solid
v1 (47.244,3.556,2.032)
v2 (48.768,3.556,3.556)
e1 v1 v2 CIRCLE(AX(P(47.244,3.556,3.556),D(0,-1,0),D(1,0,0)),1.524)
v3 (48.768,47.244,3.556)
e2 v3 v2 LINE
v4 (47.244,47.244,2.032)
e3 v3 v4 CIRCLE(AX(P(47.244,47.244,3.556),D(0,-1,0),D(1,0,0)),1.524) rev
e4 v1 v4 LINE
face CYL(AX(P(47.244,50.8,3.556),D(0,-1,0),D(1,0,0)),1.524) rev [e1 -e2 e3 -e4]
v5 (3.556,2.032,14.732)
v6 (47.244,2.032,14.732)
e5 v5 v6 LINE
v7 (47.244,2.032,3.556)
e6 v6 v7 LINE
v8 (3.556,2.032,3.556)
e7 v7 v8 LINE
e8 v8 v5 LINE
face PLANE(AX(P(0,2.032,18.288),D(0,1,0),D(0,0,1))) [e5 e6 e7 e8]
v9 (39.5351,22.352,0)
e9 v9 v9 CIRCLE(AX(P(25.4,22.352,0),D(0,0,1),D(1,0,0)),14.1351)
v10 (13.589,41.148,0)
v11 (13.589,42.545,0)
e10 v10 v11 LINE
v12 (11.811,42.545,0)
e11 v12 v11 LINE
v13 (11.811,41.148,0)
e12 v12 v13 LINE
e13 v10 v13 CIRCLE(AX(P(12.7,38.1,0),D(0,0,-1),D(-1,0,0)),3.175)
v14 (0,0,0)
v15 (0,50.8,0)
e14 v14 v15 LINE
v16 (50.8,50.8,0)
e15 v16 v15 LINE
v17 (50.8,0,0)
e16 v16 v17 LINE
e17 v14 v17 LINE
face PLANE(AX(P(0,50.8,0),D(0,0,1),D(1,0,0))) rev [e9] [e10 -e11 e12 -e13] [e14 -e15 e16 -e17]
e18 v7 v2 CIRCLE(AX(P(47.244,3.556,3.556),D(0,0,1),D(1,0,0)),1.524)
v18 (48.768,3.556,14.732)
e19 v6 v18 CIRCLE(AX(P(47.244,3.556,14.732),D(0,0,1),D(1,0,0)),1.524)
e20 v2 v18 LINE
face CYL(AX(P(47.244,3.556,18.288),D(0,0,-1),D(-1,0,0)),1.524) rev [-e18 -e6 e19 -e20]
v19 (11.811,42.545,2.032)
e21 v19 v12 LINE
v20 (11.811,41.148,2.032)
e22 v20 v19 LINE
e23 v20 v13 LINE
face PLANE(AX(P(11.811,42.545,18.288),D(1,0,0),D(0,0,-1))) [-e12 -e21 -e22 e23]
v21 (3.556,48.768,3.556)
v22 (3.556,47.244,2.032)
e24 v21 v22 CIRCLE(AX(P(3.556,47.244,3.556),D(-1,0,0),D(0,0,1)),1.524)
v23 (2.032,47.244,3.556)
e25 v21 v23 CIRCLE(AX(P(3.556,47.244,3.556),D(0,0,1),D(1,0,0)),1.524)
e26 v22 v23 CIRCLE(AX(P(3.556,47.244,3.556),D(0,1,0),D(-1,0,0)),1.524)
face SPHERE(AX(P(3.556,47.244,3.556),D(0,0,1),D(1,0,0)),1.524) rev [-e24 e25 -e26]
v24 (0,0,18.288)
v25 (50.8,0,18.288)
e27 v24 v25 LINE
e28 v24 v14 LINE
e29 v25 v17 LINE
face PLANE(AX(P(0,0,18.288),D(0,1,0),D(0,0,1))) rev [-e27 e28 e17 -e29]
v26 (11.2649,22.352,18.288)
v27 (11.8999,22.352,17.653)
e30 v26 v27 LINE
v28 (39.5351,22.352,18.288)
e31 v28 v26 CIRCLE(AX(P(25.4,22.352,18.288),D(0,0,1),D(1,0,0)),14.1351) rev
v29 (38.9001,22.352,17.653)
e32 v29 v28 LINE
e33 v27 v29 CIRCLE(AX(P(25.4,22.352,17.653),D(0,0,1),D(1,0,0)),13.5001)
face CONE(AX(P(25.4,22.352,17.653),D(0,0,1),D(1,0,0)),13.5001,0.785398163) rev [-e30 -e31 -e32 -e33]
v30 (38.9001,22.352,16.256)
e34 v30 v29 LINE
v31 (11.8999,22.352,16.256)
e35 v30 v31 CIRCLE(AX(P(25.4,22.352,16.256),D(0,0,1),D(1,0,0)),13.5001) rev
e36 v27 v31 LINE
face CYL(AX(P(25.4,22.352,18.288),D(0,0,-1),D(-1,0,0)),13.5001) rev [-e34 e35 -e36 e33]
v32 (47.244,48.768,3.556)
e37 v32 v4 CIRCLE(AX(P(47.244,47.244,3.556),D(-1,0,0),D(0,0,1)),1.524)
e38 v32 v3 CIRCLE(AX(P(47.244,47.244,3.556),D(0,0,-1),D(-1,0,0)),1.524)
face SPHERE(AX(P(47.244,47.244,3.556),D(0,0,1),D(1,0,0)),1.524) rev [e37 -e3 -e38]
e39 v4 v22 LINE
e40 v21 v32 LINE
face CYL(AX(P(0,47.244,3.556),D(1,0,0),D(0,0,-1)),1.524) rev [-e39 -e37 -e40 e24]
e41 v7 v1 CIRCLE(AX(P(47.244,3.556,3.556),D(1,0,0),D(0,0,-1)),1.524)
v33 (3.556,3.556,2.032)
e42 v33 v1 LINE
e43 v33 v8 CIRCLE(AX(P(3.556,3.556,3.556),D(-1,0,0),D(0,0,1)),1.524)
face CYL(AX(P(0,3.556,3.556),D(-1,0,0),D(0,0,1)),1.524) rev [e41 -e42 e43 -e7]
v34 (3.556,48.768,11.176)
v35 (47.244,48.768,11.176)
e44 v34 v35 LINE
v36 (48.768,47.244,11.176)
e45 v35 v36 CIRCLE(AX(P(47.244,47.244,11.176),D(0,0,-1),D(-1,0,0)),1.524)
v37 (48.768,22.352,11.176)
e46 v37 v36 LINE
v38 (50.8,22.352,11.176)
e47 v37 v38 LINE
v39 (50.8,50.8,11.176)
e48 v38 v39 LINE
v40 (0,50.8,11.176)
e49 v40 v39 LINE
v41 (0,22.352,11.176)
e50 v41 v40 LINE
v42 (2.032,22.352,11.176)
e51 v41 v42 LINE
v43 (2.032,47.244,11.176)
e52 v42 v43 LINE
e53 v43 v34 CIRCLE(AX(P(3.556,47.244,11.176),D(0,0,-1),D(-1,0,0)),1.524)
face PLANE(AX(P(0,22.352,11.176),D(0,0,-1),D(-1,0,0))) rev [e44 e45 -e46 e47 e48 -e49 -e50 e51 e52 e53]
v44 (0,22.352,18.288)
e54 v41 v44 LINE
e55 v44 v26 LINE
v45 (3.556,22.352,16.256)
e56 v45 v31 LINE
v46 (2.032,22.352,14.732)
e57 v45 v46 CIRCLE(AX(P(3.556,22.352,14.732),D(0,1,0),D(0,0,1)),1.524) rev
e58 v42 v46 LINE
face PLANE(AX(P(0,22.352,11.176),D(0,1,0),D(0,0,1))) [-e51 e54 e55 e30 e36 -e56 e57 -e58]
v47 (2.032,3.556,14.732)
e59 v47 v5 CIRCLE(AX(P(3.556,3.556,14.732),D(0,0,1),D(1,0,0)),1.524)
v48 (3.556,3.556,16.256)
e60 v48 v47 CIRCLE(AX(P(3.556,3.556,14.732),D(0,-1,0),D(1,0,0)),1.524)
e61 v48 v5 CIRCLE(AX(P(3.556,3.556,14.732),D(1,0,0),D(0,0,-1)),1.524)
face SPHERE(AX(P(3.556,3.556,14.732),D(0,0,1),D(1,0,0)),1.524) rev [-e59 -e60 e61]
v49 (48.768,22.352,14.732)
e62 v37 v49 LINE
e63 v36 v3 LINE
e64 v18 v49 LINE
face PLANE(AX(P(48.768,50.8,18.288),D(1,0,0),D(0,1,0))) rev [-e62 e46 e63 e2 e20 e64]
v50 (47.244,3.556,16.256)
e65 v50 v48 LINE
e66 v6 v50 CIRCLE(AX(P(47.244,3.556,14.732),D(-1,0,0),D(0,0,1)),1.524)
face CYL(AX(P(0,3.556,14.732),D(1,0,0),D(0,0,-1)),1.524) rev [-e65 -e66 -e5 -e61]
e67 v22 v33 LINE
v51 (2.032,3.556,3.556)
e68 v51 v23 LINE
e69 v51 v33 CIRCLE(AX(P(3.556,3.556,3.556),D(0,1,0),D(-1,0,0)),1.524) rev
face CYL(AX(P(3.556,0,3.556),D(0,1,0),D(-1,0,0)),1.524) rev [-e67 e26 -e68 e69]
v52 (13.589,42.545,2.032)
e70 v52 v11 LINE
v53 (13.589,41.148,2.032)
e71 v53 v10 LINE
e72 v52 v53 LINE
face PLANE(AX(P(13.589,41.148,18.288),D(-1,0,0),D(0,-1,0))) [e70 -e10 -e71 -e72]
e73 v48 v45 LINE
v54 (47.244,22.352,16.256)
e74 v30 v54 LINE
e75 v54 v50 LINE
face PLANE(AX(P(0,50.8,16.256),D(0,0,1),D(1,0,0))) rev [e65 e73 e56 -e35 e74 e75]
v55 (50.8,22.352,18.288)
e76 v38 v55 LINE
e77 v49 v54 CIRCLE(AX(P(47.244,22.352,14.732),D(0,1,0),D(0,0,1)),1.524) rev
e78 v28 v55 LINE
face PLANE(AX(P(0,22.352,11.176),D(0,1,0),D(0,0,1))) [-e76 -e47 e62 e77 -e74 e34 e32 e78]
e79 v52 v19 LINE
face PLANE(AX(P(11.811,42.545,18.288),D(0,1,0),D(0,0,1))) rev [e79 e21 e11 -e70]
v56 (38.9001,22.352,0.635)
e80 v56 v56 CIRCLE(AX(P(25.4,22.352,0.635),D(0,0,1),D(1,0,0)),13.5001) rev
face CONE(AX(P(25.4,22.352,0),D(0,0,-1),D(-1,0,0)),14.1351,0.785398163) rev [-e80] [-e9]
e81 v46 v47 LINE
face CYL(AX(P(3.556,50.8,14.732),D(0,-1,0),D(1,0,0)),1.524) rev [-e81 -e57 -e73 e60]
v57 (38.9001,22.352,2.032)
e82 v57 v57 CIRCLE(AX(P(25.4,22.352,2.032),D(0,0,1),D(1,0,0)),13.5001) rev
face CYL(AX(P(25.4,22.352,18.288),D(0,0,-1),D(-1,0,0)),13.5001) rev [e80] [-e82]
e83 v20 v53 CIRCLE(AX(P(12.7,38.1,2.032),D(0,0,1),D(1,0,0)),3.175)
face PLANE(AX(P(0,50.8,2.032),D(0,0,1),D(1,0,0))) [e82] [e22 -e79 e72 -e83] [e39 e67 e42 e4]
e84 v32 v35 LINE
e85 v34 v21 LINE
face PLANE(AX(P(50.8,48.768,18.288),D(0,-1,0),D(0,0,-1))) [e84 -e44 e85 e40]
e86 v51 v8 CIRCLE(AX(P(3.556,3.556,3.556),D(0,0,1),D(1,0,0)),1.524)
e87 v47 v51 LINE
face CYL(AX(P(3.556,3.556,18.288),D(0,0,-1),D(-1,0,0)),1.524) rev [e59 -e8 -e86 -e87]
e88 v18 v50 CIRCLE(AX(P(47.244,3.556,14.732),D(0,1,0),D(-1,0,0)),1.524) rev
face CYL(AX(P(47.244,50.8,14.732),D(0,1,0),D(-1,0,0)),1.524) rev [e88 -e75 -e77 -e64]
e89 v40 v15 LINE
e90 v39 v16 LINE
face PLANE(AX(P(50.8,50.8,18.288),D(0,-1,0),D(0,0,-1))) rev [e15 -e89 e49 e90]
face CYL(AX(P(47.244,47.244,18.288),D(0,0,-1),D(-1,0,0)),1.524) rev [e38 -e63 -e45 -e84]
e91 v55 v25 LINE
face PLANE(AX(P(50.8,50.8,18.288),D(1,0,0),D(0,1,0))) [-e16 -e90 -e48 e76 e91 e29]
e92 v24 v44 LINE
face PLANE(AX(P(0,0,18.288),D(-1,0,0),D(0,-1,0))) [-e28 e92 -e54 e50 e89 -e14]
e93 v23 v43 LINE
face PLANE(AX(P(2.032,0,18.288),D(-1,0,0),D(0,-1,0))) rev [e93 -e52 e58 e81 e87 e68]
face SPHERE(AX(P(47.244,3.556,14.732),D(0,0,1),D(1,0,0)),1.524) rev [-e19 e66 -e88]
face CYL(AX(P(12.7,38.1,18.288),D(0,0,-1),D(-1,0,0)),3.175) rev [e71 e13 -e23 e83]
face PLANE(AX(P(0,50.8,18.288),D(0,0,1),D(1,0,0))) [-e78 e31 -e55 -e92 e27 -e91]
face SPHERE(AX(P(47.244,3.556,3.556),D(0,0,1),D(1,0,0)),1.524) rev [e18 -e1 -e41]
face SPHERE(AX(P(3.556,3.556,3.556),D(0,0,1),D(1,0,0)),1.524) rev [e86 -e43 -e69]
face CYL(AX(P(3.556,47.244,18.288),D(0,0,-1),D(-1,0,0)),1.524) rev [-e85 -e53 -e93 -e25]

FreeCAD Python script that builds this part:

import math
import FreeCAD as App
import Part
import Sketcher

V = App.Vector
Q = App.Units.Quantity


def edges_at(feature, points):
    """Names of the edges that pass closest to the given points."""
    edges = feature.Shape.Edges
    near = lambda p: min(range(len(edges)), key=lambda i: edges[i].distToShape(Part.Vertex(*p))[0])
    return sorted({f"Edge{near(p) + 1}" for p in points})


def faces_at(feature, points):
    """Names of the faces that lie closest to the given points."""
    faces = feature.Shape.Faces
    near = lambda p: min(range(len(faces)), key=lambda i: faces[i].distToShape(Part.Vertex(*p))[0])
    return sorted({f"Face{near(p) + 1}" for p in points})

doc = App.newDocument("Part")
body = doc.addObject("PartDesign::Body", "Body")

# Sketch on XY plane
sketch1 = body.newObject("Sketcher::SketchObject", "Sketch")
sketch1.AttachmentSupport = (doc.getObject("XY_Plane"), [""])
sketch1.MapMode = "FlatFace"
sketch1.addGeometry([
    Part.LineSegment(V(0, 51, 0), V(0, 0, 0)),
    Part.LineSegment(V(0, 0, 0), V(51, 0, 0)),
    Part.LineSegment(V(51, 0, 0), V(51, 51, 0)),
    Part.LineSegment(V(51, 51, 0), V(0, 51, 0)),
], False)
sketch1.addConstraint([
    Sketcher.Constraint("Coincident", 0, 2, 1, 1),
    Sketcher.Constraint("Coincident", 1, 2, 2, 1),
    Sketcher.Constraint("Coincident", 2, 2, 3, 1),
    Sketcher.Constraint("Coincident", 3, 2, 0, 1),
    Sketcher.Constraint("Vertical", 0),
    Sketcher.Constraint("Horizontal", 1),
    Sketcher.Constraint("Vertical", 2),
    Sketcher.Constraint("Horizontal", 3),
    Sketcher.Constraint("Coincident", 0, 2, -1, 1),
    Sketcher.Constraint("Equal", 3, 0),
    Sketcher.Constraint("DistanceX", 1, 1, 1, 2, Q("2 in")),
])
pad1 = body.newObject("PartDesign::Pad", "Pad")
pad1.Profile = sketch1
pad1.Length = Q("0.72 in")

# Sketch on YZ plane
sketch2 = body.newObject("Sketcher::SketchObject", "Sketch001")
sketch2.AttachmentSupport = (doc.getObject("YZ_Plane"), [""])
sketch2.MapMode = "FlatFace"
sketch2.AttachmentOffset = App.Placement(V(0, 0, 2 * 25.4), App.Rotation())
sketch2.addGeometry([
    Part.LineSegment(V(51, 18, 0), V(22, 18, 0)),
    Part.LineSegment(V(22, 18, 0), V(22, 11, 0)),
    Part.LineSegment(V(22, 11, 0), V(51, 11, 0)),
    Part.LineSegment(V(51, 11, 0), V(51, 18, 0)),
], False)
sketch2.addConstraint([
    Sketcher.Constraint("Coincident", 0, 2, 1, 1),
    Sketcher.Constraint("Coincident", 1, 2, 2, 1),
    Sketcher.Constraint("Coincident", 2, 2, 3, 1),
    Sketcher.Constraint("Coincident", 3, 2, 0, 1),
    Sketcher.Constraint("Horizontal", 0),
    Sketcher.Constraint("Vertical", 1),
    Sketcher.Constraint("Horizontal", 2),
    Sketcher.Constraint("Vertical", 3),
    Sketcher.Constraint("DistanceX", -1, 1, 2, 2, Q("2 in")),
    Sketcher.Constraint("DistanceX", 0, 2, 0, 1, Q("1.12 in")),
    Sketcher.Constraint("DistanceY", 1, 2, 1, 1, Q("0.28 in")),
    Sketcher.Constraint("DistanceY", -1, 1, 0, 2, Q("0.72 in")),
])
pocket1 = body.newObject("PartDesign::Pocket", "Pocket")
pocket1.Profile = sketch2
pocket1.Type = "ThroughAll"
doc.recompute()

thickness = body.newObject("PartDesign::Thickness", "Thickness")
thickness.Base = (pocket1, faces_at(pocket1, [(25.4, 36.576, 11.176), (25.4, 22.352, 14.732)]))
thickness.Value = Q("0.08 in")
thickness.Reversed = True
thickness.Join = "Intersection"

# Sketch on XY plane
sketch3 = body.newObject("Sketcher::SketchObject", "Sketch002")
sketch3.AttachmentSupport = (doc.getObject("XY_Plane"), [""])
sketch3.MapMode = "FlatFace"
sketch3.addGeometry(Part.Circle(V(25, 22, 0), V(0, 0, 1), 14), False)
sketch3.addConstraint([
    Sketcher.Constraint("Diameter", 0, Q("1.063 in")),
    Sketcher.Constraint("DistanceX", -1, 1, 0, 3, Q("1 in")),
    Sketcher.Constraint("DistanceY", -1, 1, 0, 3, Q("0.88 in")),
])
pocket2 = body.newObject("PartDesign::Pocket", "Pocket001")
pocket2.Profile = sketch3
pocket2.Type = "ThroughAll"
pocket2.Reversed = True
doc.recompute()

fillet = body.newObject("PartDesign::Fillet", "Fillet")
fillet.Base = (pocket2, edges_at(pocket2, [
    (2.032, 12.192, 16.256),
    (48.768, 12.192, 16.256),
    (2.032, 25.4, 2.032),
    (48.768, 25.4, 2.032),
]))
fillet.Radius = Q("0.06 in")
doc.recompute()

fillet2 = body.newObject("PartDesign::Fillet", "Fillet001")
fillet2.Base = (fillet, edges_at(fillet, [
    (2.032, 48.768, 7.366),
    (48.768, 48.768, 7.366),
    (25.4, 2.032, 16.256),
    (25.4, 2.032, 2.032),
    (2.032, 2.032, 9.144),
    (48.768, 2.032, 9.144),
    (2.478, 2.032, 15.81),
    (2.478, 2.032, 2.478),
    (48.322, 2.032, 2.478),
    (48.322, 2.032, 15.81),
    (25.4, 48.768, 2.032),
    (2.478, 48.768, 2.478),
    (48.322, 48.768, 2.478),
]))
fillet2.Radius = Q("0.06 in")
doc.recompute()

chamfer = body.newObject("PartDesign::Chamfer", "Chamfer")
chamfer.Base = (fillet2, edges_at(fillet2, [(11.9, 22.352, 0), (25.4, 8.852, 18.288)]))
chamfer.Size = Q("0.025 in")

# Sketch on XY plane
sketch4 = body.newObject("Sketcher::SketchObject", "Sketch003")
sketch4.AttachmentSupport = (doc.getObject("XY_Plane"), [""])
sketch4.MapMode = "FlatFace"
sketch4.addGeometry([
    Part.LineSegment(V(13.6, 42.5, 0), V(13.6, 41.1, 0)),
    Part.ArcOfCircle(Part.Circle(V(12.7, 38.1, 0), V(0, 0, 1), 3.2), math.radians(106), math.radians(434)),
    Part.LineSegment(V(11.8, 41.1, 0), V(11.8, 42.5, 0)),
    Part.LineSegment(V(11.8, 42.5, 0), V(13.6, 42.5, 0)),
], False)
sketch4.addConstraint([
    Sketcher.Constraint("Coincident", 0, 2, 1, 2),
    Sketcher.Constraint("Coincident", 1, 1, 2, 1),
    Sketcher.Constraint("Coincident", 2, 2, 3, 1),
    Sketcher.Constraint("Coincident", 3, 2, 0, 1),
    Sketcher.Constraint("Vertical", 0),
    Sketcher.Constraint("Vertical", 2),
    Sketcher.Constraint("Horizontal", 3),
    Sketcher.Constraint("Horizontal", 0, 2, 1, 1),
    Sketcher.Constraint("Radius", 1, Q("0.125 in")),
    Sketcher.Constraint("DistanceX", 3, 1, 3, 2, Q("0.07 in")),
    Sketcher.Constraint("DistanceX", -1, 1, 1, 3, Q("0.5 in")),
    Sketcher.Constraint("DistanceY", -1, 1, 1, 3, Q("1.5 in")),
    Sketcher.Constraint("DistanceY", 0, 2, 0, 1, Q("0.055 in")),
])
pocket3 = body.newObject("PartDesign::Pocket", "Pocket002")
pocket3.Profile = sketch4
pocket3.Type = "ThroughAll"
pocket3.Reversed = True

doc.recompute()
